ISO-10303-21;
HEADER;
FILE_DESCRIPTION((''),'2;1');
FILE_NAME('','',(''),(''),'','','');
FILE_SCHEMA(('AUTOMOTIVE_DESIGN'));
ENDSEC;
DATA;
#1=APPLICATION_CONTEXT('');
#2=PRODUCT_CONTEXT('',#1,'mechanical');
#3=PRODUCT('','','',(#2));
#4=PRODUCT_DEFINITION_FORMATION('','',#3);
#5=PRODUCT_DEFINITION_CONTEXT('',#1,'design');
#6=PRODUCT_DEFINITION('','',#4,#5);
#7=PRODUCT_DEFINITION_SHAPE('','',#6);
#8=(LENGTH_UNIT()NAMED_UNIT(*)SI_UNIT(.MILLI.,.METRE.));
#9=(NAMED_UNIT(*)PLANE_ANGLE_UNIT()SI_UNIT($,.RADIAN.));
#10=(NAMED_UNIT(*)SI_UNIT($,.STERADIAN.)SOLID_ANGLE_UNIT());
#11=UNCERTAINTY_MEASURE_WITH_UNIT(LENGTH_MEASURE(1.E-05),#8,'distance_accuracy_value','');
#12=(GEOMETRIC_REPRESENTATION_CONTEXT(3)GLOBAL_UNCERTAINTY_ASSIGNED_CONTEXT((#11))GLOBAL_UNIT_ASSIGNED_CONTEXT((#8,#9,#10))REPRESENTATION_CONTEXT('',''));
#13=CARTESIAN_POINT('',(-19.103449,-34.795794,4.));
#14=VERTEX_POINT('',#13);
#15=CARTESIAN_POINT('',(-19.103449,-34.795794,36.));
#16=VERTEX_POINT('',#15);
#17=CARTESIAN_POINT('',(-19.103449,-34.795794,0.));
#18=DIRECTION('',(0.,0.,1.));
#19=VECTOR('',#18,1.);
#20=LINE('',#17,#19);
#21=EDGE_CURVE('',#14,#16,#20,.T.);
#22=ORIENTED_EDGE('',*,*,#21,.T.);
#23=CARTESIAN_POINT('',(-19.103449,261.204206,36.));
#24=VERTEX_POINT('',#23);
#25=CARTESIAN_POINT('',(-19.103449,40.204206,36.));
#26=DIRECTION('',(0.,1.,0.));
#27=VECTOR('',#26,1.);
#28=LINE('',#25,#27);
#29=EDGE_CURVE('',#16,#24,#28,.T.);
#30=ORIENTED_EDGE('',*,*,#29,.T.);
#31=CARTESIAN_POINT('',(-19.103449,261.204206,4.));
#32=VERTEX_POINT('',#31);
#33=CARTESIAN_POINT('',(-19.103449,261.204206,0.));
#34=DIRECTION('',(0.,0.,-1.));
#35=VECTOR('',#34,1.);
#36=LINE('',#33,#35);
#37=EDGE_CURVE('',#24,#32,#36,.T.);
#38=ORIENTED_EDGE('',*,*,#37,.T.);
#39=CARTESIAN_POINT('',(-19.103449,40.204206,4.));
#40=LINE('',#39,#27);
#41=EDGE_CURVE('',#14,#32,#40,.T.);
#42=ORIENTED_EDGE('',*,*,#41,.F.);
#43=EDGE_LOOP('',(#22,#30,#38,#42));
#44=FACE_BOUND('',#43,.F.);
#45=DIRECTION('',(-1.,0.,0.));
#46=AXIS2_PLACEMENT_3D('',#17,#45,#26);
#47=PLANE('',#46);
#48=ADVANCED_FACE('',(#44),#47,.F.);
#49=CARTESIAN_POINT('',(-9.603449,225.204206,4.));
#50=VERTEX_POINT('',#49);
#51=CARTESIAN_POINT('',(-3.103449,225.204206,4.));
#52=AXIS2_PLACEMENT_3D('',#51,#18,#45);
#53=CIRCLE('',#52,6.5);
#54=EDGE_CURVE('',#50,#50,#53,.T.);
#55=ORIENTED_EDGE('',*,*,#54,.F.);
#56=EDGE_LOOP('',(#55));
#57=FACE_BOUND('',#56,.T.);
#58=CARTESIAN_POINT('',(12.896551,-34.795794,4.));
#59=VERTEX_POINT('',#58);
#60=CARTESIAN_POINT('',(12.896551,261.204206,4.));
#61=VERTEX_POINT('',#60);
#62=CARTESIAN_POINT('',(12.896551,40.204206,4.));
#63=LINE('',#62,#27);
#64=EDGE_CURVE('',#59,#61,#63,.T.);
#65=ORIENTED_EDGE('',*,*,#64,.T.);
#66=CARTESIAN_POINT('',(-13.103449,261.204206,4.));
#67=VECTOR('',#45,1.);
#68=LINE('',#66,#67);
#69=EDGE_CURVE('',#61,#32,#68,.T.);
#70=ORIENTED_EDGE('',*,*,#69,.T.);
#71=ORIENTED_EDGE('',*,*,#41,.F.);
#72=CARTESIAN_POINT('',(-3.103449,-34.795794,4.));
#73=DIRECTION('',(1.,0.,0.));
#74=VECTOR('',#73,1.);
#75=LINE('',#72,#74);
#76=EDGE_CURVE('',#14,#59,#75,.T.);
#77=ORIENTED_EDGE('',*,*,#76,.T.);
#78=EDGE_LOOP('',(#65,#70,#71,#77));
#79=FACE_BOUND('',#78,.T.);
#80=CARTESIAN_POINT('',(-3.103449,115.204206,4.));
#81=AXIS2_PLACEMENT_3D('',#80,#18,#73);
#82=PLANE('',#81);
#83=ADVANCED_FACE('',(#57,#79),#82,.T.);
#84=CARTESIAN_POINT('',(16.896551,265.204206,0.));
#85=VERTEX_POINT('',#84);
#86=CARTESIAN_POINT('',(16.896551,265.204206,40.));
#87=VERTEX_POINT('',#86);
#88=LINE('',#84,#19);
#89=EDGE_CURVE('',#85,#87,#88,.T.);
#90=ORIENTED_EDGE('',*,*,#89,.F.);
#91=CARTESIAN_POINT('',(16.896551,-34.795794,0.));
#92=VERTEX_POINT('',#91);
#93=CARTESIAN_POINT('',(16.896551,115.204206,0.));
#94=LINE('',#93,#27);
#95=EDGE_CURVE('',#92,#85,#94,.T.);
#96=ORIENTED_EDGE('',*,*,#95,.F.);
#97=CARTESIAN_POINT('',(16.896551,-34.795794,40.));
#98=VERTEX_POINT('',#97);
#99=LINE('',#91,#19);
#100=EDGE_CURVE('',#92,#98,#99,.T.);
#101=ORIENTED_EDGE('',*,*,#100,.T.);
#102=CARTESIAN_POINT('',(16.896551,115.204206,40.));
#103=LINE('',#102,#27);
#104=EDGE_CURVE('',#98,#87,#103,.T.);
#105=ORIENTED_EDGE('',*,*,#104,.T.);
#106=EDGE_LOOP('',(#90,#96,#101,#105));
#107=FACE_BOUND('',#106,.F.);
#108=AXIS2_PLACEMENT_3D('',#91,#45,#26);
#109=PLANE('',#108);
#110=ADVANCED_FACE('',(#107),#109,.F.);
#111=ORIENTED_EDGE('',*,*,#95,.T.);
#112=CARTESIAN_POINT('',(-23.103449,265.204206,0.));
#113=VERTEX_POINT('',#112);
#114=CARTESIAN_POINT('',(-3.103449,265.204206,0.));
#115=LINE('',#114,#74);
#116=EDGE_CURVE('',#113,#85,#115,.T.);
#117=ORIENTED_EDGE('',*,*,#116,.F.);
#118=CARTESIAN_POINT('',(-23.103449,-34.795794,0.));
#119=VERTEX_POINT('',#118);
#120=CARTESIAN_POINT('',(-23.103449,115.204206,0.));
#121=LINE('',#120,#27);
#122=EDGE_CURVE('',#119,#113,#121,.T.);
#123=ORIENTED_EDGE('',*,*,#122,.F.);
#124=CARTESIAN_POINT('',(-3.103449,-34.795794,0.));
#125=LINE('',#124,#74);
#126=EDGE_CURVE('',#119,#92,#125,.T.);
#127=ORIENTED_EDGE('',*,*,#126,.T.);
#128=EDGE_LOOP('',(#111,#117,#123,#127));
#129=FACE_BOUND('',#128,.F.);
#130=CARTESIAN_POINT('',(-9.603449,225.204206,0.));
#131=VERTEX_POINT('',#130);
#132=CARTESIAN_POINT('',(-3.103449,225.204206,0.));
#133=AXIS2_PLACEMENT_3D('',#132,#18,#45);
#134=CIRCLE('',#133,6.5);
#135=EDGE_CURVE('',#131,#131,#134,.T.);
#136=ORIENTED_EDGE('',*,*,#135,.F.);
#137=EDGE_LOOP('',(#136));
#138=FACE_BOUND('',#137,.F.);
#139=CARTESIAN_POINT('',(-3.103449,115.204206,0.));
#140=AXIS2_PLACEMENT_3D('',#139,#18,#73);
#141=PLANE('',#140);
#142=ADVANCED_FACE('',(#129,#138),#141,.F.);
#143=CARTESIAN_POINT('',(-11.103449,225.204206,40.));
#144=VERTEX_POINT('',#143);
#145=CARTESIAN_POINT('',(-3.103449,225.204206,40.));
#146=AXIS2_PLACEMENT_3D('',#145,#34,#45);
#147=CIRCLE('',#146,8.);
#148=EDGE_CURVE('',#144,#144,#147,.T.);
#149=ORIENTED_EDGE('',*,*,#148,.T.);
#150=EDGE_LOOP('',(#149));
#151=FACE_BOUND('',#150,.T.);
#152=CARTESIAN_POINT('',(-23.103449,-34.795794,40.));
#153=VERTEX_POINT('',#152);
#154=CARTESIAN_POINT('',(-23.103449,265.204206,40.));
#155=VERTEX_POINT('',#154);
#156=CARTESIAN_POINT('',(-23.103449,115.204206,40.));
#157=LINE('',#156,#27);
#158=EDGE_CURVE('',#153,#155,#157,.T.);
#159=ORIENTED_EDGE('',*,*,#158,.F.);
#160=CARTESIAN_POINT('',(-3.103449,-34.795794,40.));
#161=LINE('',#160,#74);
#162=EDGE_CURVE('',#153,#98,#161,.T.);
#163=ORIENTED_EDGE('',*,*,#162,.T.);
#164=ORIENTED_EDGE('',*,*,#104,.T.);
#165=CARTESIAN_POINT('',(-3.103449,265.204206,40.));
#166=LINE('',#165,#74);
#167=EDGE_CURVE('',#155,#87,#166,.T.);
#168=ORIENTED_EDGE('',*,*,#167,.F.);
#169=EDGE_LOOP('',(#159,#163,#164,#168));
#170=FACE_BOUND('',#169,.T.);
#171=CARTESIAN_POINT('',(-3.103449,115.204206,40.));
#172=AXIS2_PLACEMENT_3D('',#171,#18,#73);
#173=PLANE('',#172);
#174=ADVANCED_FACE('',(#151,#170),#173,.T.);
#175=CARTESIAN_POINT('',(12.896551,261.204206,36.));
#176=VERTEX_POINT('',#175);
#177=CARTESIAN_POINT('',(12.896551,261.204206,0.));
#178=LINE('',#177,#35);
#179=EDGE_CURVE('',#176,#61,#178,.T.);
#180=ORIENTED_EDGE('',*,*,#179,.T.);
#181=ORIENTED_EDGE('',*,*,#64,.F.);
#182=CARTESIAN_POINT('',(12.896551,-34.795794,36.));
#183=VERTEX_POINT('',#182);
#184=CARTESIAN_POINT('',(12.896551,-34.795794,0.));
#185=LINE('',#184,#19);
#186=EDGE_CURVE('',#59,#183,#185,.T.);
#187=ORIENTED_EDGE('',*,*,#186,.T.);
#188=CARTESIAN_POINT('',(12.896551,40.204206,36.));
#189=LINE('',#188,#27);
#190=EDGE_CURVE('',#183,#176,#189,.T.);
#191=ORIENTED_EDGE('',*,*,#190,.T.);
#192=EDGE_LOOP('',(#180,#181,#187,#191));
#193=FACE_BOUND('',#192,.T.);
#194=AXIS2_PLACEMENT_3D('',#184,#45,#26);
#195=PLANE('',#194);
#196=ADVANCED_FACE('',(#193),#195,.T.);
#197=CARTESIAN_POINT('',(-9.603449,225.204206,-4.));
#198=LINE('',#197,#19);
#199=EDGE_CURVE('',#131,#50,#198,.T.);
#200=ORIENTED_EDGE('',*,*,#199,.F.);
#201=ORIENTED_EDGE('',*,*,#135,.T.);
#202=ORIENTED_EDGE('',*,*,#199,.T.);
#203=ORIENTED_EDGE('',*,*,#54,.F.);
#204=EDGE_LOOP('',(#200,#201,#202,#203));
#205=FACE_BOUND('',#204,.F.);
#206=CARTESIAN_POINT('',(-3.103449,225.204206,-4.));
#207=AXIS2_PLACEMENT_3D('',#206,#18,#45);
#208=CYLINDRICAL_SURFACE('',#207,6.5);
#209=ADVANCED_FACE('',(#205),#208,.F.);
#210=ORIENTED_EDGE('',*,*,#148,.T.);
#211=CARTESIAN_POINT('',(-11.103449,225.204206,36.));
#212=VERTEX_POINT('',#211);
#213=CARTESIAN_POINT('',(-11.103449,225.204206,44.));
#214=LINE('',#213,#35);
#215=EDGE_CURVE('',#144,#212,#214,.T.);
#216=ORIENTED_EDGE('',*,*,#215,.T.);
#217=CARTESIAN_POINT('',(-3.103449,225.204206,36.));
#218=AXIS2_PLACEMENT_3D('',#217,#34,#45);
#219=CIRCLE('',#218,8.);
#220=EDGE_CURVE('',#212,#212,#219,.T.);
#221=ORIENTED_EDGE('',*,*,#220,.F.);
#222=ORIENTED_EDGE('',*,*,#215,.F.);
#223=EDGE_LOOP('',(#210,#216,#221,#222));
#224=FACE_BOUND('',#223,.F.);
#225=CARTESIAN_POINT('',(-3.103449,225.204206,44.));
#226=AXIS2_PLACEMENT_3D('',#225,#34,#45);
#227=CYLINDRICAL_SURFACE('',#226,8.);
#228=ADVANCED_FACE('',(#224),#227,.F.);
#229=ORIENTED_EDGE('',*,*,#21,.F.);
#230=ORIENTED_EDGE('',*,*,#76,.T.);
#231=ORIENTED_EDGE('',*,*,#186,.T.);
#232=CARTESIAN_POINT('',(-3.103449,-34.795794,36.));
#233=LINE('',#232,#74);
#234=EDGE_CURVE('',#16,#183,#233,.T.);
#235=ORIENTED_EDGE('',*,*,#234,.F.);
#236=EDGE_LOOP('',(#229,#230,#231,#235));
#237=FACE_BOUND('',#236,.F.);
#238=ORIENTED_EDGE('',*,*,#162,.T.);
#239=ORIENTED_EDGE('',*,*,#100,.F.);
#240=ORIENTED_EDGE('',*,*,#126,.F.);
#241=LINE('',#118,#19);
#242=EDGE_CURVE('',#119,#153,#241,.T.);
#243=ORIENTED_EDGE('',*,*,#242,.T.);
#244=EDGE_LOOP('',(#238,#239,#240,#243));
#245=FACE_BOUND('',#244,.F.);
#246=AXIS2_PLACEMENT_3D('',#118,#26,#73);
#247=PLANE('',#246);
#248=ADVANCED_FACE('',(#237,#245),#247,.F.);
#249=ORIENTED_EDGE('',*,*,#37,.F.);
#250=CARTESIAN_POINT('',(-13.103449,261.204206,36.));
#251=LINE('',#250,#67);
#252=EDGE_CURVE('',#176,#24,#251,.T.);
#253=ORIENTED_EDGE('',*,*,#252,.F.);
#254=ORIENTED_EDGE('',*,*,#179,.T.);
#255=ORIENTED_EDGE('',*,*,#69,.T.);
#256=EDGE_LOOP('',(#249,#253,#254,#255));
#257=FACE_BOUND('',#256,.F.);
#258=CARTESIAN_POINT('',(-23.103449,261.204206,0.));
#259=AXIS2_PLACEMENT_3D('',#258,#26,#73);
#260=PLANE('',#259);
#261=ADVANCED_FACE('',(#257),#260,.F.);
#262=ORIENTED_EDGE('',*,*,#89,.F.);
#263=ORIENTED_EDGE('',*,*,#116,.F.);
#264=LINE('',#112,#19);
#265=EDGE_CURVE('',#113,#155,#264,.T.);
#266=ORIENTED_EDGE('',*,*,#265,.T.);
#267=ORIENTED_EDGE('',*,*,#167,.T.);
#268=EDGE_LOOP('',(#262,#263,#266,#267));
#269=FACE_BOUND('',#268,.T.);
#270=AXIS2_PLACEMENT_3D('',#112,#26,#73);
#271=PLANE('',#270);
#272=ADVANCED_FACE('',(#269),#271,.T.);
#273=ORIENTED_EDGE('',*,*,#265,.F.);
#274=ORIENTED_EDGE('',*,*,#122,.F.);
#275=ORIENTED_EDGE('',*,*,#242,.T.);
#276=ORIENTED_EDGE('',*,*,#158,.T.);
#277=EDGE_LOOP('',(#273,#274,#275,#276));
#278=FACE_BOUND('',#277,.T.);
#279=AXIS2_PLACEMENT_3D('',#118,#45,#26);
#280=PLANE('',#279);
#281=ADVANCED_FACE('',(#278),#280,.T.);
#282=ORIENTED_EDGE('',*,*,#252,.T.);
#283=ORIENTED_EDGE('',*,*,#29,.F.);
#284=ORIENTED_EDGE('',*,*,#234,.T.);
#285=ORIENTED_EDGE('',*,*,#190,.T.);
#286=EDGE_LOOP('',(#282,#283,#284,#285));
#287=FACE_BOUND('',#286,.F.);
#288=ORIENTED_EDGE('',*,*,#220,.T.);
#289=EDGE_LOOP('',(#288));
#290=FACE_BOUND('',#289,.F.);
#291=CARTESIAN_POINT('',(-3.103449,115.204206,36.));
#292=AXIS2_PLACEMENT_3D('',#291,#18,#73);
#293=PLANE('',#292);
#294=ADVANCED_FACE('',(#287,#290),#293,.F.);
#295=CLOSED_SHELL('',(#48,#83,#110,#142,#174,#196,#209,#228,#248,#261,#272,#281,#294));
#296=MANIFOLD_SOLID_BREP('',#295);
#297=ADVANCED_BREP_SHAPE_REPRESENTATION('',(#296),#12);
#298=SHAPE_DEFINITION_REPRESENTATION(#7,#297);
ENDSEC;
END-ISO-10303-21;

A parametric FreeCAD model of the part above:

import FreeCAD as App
import Part
import Sketcher

V = App.Vector
Q = App.Units.Quantity


def faces_at(feature, points):
    """Names of the faces that lie closest to the given points."""
    faces = feature.Shape.Faces
    near = lambda p: min(range(len(faces)), key=lambda i: faces[i].distToShape(Part.Vertex(*p))[0])
    return sorted({f"Face{near(p) + 1}" for p in points})

doc = App.newDocument("Part")
params = doc.addObject("Spreadsheet::Sheet", "Params")
for row, (alias, value) in enumerate([
    ("sketch1_width", "40 mm"),
    ("sketch1_height", "300 mm"),
    ("pad1_length", "40 mm"),
    ("thickness_wall", "4 mm"),
    ("sketch2_diameter", "16 mm"),
    ("hole_diameter", "16 mm"),
    ("hole_depth", "4 mm"),
    ("sketch3_diameter", "13 mm"),
    ("hole2_diameter", "13 mm"),
    ("hole2_depth", "4 mm"),
], start=1):
    params.set(f"A{row}", alias)
    params.set(f"B{row}", "=" + value)
    params.setAlias(f"B{row}", alias)

body = doc.addObject("PartDesign::Body", "Body")

sketch1 = body.newObject("Sketcher::SketchObject", "Sketch")
sketch1.AttachmentSupport = (doc.getObject("XY_Plane"), [""])
sketch1.MapMode = "FlatFace"
sketch1.addGeometry(Part.LineSegment(V(-23, 265, 0), V(-23, -35, 0)), False)
sketch1.addGeometry(Part.LineSegment(V(-23, -35, 0), V(17, -35, 0)), False)
sketch1.addGeometry(Part.LineSegment(V(17, -35, 0), V(17, 265, 0)), False)
sketch1.addGeometry(Part.LineSegment(V(17, 265, 0), V(-23, 265, 0)), False)
sketch1.addConstraint(Sketcher.Constraint("Coincident", 0, 2, 1, 1))
sketch1.addConstraint(Sketcher.Constraint("Coincident", 1, 2, 2, 1))
sketch1.addConstraint(Sketcher.Constraint("Coincident", 2, 2, 3, 1))
sketch1.addConstraint(Sketcher.Constraint("Coincident", 3, 2, 0, 1))
sketch1.addConstraint(Sketcher.Constraint("Vertical", 0))
sketch1.addConstraint(Sketcher.Constraint("Horizontal", 1))
sketch1.addConstraint(Sketcher.Constraint("Vertical", 2))
sketch1.addConstraint(Sketcher.Constraint("Horizontal", 3))
sketch1.addConstraint(Sketcher.Constraint("DistanceX", 1, 1, 1, 2, Q("40 mm")))
sketch1.addConstraint(Sketcher.Constraint("DistanceY", 0, 2, 0, 1, Q("300 mm")))
sketch1.addConstraint(Sketcher.Constraint("DistanceX", 0, 2, -1, 1, Q("23.103449 mm")))
sketch1.addConstraint(Sketcher.Constraint("DistanceY", 0, 2, -1, 1, Q("34.795794 mm")))
sketch1.setExpression("Constraints[8]", "Params.sketch1_width")
sketch1.setExpression("Constraints[9]", "Params.sketch1_height")
pad1 = body.newObject("PartDesign::Pad", "Pad")
pad1.Profile = sketch1
pad1.setExpression("Length", "Params.pad1_length")
doc.recompute()

thickness = body.newObject("PartDesign::Thickness", "Thickness")
thickness.Base = (pad1, faces_at(pad1, [(-3.103, -34.796, 20)]))
thickness.setExpression("Value", "Params.thickness_wall")
thickness.Reversed = True
thickness.Join = "Arc"

sketch2 = body.newObject("Sketcher::SketchObject", "Sketch001")
sketch2.AttachmentSupport = (doc.getObject("XY_Plane"), [""])
sketch2.MapMode = "FlatFace"
sketch2.AttachmentOffset = App.Placement(V(0, 0, 40), App.Rotation())
sketch2.addGeometry(Part.Circle(V(-3, 225, 0), V(0, 0, 1), 8), False)
sketch2.addConstraint(Sketcher.Constraint("Diameter", 0, Q("16 mm")))
sketch2.addConstraint(Sketcher.Constraint("DistanceX", 0, 3, -1, 1, Q("3.103449 mm")))
sketch2.addConstraint(Sketcher.Constraint("DistanceY", -1, 1, 0, 3, Q("225.204206 mm")))
sketch2.setExpression("Constraints[0]", "Params.sketch2_diameter")
doc.recompute()
hole = body.newObject("PartDesign::Hole", "Hole")
hole.Profile = sketch2
hole.ThreadType = "None"
hole.setExpression("Diameter", "Params.hole_diameter")
hole.DepthType = "Dimension"
hole.setExpression("Depth", "Params.hole_depth")
hole.DrillPoint = "Flat"

sketch3 = body.newObject("Sketcher::SketchObject", "Sketch002")
sketch3.AttachmentSupport = (doc.getObject("XY_Plane"), [""])
sketch3.MapMode = "FlatFace"
sketch3.addGeometry(Part.Circle(V(-3, 225, 0), V(0, 0, 1), 6), False)
sketch3.addConstraint(Sketcher.Constraint("Diameter", 0, Q("13 mm")))
sketch3.addConstraint(Sketcher.Constraint("DistanceX", 0, 3, -1, 1, Q("3.103449 mm")))
sketch3.addConstraint(Sketcher.Constraint("DistanceY", -1, 1, 0, 3, Q("225.204206 mm")))
sketch3.setExpression("Constraints[0]", "Params.sketch3_diameter")
doc.recompute()
hole2 = body.newObject("PartDesign::Hole", "Hole001")
hole2.Profile = sketch3
hole2.ThreadType = "None"
hole2.setExpression("Diameter", "Params.hole2_diameter")
hole2.DepthType = "Dimension"
hole2.setExpression("Depth", "Params.hole2_depth")
hole2.DrillPoint = "Flat"
hole2.Reversed = True

doc.recompute()
